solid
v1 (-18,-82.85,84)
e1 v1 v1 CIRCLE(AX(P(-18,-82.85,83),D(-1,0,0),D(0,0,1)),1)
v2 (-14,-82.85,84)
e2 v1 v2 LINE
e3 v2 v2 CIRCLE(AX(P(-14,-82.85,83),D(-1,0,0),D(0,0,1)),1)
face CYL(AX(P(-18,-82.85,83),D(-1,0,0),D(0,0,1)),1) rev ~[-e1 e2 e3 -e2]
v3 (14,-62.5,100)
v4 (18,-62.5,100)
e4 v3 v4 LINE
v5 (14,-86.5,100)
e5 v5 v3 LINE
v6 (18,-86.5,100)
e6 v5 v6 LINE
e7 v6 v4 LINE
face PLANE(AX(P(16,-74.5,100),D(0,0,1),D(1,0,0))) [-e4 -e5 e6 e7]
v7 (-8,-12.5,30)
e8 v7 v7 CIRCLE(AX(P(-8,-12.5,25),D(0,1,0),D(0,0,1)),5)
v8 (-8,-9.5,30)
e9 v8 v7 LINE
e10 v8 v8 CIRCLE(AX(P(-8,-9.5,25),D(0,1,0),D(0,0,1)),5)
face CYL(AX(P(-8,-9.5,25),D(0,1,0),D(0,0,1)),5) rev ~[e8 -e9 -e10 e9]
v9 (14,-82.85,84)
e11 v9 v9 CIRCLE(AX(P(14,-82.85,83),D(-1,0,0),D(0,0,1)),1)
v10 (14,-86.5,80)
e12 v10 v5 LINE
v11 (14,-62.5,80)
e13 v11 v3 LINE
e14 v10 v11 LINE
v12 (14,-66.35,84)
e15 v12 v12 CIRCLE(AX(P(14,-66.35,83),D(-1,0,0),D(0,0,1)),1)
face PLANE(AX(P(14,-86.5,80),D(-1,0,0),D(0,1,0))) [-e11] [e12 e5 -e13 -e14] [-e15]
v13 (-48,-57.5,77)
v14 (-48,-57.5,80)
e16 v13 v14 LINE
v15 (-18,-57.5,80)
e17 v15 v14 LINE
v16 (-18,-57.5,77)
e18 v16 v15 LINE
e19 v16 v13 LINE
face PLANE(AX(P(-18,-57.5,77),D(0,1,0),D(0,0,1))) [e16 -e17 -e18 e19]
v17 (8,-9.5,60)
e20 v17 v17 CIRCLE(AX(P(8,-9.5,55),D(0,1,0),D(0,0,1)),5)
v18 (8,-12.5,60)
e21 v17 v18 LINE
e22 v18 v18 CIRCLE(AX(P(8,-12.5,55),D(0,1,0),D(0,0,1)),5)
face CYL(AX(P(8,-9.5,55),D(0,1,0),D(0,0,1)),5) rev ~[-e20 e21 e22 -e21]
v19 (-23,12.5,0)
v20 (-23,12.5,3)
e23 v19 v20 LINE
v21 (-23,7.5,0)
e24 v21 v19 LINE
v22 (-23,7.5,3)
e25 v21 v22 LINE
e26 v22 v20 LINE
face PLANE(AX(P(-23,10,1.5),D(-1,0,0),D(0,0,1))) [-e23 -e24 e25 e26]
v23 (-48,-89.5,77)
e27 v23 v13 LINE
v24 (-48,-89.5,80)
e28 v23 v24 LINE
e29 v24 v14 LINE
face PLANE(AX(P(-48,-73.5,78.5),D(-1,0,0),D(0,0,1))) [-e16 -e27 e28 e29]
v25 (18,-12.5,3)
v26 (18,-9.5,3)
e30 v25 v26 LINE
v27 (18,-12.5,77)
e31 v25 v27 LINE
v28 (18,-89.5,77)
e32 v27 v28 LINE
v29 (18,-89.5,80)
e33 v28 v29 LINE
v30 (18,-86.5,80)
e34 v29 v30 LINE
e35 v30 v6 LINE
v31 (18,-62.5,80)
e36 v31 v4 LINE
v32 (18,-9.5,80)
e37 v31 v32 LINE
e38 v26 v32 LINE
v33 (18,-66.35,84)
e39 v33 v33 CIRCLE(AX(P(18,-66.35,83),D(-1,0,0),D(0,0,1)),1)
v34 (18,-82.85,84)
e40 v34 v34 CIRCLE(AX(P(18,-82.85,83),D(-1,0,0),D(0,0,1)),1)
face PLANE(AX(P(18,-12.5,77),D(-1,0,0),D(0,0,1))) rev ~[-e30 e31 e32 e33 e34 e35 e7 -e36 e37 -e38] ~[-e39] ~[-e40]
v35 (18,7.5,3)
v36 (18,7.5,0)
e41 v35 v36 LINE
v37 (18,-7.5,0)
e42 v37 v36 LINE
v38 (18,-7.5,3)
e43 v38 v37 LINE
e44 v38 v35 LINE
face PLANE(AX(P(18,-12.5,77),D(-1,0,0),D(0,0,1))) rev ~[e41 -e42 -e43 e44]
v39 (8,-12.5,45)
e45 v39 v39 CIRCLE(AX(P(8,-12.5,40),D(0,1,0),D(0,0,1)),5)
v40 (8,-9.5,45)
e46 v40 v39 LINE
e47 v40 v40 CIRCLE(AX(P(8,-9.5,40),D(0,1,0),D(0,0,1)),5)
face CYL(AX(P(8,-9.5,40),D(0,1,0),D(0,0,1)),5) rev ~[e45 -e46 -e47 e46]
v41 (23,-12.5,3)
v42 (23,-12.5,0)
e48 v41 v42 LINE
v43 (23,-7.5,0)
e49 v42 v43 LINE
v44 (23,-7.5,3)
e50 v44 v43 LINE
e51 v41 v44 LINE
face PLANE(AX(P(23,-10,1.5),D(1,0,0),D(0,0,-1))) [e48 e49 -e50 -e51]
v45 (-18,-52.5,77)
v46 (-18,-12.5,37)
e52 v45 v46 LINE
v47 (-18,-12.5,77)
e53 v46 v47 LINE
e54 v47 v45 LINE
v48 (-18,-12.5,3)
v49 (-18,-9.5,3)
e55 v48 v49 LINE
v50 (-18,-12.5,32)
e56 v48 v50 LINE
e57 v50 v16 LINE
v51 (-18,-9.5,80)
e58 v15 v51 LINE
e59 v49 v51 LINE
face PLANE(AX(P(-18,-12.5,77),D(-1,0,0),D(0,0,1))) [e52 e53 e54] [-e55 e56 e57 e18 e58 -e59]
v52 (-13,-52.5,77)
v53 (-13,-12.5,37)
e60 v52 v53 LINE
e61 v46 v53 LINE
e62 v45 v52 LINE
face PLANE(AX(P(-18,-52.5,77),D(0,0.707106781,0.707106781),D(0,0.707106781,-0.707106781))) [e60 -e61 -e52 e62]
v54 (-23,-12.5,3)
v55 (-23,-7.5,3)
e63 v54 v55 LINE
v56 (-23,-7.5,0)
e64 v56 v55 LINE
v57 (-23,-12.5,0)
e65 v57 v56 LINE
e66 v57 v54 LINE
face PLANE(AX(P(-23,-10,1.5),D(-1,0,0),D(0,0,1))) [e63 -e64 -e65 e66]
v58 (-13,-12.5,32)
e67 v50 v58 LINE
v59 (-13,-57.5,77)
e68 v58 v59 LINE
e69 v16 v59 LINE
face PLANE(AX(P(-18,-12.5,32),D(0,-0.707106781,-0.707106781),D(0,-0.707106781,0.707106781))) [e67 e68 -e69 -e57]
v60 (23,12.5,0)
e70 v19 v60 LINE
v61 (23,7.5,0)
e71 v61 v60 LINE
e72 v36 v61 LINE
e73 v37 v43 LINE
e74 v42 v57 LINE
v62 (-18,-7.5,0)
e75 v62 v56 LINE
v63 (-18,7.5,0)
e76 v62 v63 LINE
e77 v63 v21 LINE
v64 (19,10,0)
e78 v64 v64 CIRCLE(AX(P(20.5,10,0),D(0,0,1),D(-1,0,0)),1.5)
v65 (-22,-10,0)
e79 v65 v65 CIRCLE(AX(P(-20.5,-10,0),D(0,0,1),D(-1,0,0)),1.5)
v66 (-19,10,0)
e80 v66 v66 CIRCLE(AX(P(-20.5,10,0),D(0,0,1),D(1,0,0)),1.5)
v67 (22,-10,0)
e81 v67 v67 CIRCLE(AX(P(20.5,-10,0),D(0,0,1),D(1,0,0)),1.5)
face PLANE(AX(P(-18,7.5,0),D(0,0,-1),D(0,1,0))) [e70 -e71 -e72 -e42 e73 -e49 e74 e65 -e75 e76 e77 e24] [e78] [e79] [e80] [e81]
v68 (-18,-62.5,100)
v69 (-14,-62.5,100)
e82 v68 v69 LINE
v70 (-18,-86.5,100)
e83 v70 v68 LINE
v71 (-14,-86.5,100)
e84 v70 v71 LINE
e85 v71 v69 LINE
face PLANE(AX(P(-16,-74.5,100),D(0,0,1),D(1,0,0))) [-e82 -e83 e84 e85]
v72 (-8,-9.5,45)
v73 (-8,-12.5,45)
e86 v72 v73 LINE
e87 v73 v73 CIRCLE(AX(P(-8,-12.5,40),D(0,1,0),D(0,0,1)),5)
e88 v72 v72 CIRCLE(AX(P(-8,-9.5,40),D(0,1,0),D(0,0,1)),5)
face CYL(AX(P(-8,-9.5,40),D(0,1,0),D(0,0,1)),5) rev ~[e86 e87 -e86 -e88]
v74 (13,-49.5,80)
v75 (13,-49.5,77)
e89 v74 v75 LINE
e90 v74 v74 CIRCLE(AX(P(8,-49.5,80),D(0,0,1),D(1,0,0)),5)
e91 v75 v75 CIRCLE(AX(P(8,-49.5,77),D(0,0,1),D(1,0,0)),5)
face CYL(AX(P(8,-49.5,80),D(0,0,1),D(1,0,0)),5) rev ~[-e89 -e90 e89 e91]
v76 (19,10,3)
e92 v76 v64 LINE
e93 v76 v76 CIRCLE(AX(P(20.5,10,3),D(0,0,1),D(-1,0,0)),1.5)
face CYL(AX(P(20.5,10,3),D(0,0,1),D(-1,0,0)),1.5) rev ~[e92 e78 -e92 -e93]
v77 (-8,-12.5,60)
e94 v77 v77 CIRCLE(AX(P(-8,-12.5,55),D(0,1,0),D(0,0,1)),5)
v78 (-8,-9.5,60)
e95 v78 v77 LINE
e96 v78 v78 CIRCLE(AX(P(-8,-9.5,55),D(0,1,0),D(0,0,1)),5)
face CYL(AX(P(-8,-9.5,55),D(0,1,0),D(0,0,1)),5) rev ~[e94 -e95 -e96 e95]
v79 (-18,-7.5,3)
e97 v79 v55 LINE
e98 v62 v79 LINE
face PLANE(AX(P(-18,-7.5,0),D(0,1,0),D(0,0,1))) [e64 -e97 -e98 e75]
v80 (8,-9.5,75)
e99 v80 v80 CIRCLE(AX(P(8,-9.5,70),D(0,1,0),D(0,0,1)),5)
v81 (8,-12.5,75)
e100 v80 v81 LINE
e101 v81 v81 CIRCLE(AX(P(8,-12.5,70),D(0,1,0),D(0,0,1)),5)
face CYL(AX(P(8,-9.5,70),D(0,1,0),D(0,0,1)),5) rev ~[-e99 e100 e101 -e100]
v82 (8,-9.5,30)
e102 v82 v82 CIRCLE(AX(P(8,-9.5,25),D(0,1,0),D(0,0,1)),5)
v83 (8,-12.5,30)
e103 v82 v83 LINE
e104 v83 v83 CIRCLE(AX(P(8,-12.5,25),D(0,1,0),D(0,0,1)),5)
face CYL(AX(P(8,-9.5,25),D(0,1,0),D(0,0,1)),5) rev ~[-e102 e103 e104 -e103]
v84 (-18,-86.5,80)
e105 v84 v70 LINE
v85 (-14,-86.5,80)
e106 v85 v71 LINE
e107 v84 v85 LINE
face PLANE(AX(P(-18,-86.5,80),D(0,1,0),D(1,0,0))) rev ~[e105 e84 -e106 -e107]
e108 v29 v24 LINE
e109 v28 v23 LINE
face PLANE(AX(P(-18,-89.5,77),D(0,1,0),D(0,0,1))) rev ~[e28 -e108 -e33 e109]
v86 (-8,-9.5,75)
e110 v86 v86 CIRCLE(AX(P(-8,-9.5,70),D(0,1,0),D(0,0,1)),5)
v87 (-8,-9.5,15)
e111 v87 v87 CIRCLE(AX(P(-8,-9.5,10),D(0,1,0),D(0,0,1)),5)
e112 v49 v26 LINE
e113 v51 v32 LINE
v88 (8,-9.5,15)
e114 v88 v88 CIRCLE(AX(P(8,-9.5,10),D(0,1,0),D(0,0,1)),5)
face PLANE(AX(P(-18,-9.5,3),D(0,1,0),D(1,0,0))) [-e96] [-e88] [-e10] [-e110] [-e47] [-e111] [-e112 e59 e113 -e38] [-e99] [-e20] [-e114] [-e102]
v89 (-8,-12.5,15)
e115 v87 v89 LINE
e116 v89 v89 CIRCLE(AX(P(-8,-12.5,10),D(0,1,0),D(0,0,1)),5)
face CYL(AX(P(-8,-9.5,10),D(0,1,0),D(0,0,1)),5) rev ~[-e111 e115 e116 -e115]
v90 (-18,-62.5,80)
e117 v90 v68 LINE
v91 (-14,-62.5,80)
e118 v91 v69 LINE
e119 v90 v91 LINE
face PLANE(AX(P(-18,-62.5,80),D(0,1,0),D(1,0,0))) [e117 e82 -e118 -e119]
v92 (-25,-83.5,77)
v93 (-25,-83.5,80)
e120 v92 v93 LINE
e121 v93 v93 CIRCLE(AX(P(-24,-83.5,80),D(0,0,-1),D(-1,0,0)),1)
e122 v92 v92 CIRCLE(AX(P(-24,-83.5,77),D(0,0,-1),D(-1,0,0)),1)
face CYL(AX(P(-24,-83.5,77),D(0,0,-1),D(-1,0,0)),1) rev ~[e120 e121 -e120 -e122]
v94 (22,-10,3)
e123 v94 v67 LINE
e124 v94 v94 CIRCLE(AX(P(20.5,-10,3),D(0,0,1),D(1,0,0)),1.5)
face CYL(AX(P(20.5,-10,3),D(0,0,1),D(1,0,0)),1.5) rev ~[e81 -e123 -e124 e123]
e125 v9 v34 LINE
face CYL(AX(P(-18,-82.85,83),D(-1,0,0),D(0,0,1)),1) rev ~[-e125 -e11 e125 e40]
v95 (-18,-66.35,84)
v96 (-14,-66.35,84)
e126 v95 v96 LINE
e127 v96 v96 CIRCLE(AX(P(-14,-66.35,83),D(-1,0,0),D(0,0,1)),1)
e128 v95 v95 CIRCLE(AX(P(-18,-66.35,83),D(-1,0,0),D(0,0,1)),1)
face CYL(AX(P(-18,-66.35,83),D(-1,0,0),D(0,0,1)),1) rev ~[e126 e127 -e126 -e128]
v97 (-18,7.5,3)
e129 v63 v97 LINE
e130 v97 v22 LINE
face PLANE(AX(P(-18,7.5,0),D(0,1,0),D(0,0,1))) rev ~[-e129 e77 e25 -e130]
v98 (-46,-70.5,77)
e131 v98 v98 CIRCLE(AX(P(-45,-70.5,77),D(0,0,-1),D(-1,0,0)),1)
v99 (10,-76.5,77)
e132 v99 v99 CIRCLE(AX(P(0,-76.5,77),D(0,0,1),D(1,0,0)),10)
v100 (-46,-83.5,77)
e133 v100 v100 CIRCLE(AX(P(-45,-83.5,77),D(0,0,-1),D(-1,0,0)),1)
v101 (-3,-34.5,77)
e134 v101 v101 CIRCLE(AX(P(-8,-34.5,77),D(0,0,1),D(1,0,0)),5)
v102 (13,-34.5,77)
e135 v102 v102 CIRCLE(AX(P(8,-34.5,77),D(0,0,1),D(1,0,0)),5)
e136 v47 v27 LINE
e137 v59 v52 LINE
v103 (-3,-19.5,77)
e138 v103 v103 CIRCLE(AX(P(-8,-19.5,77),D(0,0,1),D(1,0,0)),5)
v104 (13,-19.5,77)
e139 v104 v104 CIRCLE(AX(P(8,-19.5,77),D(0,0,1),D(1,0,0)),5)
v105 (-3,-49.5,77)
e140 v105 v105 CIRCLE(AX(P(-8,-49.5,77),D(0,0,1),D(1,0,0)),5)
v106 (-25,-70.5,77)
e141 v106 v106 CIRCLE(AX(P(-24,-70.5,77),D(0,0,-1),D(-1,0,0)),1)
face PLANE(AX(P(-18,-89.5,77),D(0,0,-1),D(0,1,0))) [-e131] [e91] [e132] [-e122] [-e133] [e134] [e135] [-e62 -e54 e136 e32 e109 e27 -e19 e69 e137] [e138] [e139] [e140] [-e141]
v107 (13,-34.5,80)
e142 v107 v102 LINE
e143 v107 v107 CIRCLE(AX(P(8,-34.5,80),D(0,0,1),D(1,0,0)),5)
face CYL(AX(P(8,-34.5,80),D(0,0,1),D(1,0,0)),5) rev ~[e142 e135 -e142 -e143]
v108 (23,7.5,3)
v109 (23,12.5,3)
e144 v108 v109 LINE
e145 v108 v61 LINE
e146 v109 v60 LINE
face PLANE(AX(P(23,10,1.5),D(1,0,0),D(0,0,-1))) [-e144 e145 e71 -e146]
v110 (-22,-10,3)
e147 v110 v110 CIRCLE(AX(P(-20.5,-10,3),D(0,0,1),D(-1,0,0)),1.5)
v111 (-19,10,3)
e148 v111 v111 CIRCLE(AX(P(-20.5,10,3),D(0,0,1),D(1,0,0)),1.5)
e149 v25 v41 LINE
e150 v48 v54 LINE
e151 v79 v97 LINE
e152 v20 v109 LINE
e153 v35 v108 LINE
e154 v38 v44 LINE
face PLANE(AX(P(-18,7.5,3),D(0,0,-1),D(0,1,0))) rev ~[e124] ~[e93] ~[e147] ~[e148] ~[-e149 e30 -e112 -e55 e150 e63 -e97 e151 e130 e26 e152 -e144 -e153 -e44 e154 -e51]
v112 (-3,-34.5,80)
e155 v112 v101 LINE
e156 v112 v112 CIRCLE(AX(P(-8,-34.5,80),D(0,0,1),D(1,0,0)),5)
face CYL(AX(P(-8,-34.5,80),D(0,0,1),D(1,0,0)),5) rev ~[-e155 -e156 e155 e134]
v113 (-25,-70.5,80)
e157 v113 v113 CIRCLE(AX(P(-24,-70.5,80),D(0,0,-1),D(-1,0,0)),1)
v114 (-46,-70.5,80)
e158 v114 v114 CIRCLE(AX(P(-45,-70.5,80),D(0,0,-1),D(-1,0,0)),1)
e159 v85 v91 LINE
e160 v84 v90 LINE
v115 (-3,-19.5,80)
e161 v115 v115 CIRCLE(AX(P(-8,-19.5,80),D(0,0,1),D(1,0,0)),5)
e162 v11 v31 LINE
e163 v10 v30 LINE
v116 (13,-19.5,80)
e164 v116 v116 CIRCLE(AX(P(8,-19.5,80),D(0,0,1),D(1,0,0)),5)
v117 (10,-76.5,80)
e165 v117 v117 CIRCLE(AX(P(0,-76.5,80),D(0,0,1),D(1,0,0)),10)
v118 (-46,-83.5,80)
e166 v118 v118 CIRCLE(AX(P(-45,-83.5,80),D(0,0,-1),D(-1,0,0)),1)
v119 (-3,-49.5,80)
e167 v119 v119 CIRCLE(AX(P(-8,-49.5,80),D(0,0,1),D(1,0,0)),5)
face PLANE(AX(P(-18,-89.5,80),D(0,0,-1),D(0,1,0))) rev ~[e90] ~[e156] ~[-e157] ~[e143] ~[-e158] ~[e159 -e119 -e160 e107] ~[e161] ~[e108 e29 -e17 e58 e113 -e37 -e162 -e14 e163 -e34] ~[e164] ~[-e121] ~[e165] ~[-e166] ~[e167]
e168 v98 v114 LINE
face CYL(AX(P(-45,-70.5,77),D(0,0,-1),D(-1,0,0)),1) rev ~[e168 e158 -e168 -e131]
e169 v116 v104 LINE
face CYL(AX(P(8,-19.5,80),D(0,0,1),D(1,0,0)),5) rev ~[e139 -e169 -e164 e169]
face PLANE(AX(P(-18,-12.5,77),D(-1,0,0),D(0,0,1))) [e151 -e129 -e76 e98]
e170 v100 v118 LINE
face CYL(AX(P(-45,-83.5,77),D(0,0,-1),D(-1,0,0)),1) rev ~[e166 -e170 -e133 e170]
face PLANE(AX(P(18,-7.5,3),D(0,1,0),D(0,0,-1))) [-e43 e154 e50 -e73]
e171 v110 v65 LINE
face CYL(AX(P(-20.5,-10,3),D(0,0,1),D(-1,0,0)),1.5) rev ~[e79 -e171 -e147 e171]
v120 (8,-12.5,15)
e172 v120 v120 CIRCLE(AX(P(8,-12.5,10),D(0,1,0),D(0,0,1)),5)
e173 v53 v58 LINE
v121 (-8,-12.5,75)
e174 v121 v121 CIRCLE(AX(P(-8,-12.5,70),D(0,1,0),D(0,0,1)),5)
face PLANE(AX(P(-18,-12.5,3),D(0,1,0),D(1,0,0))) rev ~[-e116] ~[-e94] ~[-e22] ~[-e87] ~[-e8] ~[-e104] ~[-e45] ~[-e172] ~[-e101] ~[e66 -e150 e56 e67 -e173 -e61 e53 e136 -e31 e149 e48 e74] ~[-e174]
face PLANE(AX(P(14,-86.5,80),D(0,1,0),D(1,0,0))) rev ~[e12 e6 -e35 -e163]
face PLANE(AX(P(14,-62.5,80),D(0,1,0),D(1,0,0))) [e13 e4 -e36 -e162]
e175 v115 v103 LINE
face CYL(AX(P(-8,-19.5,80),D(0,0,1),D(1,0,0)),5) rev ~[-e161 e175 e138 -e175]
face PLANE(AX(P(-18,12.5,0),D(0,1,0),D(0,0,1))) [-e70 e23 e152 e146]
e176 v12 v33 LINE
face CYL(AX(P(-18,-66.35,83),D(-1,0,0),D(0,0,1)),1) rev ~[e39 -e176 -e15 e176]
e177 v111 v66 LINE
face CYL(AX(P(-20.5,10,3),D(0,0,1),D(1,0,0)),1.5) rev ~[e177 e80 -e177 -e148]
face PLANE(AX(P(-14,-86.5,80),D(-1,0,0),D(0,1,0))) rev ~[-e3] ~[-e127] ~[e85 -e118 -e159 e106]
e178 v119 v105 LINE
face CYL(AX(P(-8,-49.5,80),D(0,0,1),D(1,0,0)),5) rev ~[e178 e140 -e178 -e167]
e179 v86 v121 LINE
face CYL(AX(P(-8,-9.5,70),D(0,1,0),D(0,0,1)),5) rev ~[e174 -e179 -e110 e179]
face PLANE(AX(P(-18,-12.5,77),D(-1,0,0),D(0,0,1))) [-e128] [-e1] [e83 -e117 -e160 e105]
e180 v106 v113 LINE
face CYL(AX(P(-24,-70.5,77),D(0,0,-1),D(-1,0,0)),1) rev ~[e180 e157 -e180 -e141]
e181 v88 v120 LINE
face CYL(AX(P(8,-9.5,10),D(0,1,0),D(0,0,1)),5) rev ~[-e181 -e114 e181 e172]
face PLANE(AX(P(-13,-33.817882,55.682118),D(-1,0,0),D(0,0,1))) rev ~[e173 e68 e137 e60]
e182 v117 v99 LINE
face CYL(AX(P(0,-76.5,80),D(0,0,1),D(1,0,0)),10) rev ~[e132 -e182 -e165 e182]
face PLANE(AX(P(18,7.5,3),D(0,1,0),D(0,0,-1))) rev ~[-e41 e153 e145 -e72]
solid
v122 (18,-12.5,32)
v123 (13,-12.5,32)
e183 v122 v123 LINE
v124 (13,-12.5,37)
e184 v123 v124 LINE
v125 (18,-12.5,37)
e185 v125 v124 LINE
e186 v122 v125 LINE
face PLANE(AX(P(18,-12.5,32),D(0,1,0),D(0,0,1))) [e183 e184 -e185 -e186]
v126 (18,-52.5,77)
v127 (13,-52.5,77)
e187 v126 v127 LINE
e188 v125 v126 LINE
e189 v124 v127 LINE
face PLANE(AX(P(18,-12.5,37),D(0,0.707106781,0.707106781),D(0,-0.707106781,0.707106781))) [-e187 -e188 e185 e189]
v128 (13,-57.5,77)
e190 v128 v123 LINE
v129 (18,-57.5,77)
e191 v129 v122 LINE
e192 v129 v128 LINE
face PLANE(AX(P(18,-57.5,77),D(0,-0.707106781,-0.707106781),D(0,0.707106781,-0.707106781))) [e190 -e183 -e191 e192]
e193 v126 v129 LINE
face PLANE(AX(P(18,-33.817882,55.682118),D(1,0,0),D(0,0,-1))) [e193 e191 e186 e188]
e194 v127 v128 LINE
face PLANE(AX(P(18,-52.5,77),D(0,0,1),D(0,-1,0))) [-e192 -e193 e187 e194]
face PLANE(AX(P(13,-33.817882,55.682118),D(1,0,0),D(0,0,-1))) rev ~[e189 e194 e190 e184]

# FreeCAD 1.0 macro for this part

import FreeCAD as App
import Part
import Sketcher
from FreeCAD import Vector

doc = App.newDocument("Part")
params = doc.addObject("Spreadsheet::Sheet", "Params")
for row, (alias, value) in enumerate([
    ("sketch1_width", "36 mm"),
    ("sketch1_height", "25 mm"),
    ("pad1_length", "3 mm"),
    ("sketch2_width", "36 mm"),
    ("sketch2_height", "3 mm"),
    ("pad2_length", "77 mm"),
    ("sketch3_width", "36 mm"),
    ("sketch3_height", "3 mm"),
    ("pad3_length", "77 mm"),
    ("sketch4_diameter", "20 mm"),
    ("pocket1_length", "77 mm"),
    ("sketch5_width", "4 mm"),
    ("sketch5_height", "24 mm"),
    ("pad4_length", "20 mm"),
    ("sketch6_width", "5 mm"),
    ("sketch6_height", "3 mm"),
    ("pad5_length", "5 mm"),
    ("sketch7_width", "5 mm"),
    ("sketch7_height", "3 mm"),
    ("pad6_length", "5 mm"),
    ("sketch8_diameter", "3 mm"),
    ("sketch9_width", "5 mm"),
    ("pad7_length", "5 mm"),
    ("sketch10_diameter", "2 mm"),
    ("sketch11_diameter", "10 mm"),
    ("pocket4_length", "5 mm"),
    ("sketch12_diameter", "10 mm"),
    ("pocket5_length", "5 mm"),
    ("sketch13_width", "32 mm"),
    ("sketch13_height", "3 mm"),
    ("pad8_length", "30 mm"),
    ("sketch14_diameter", "2 mm"),
    ("pocket6_length", "10 mm"),
    ("sketch15_width", "5 mm"),
    ("pad9_length", "5 mm"),
], start=1):
    params.set(f"A{row}", alias)
    params.set(f"B{row}", "=" + value)
    params.setAlias(f"B{row}", alias)

body = doc.addObject("PartDesign::Body", "Body")

sketch1 = doc.addObject("Sketcher::SketchObject", "Sketch")
body.addObject(sketch1)
sketch1.AttachmentSupport = (doc.XY_Plane, [""])
sketch1.MapMode = "FlatFace"
sketch1.addGeometry(Part.LineSegment(Vector(-18, 12.5, 0), Vector(-18, -12.5, 0)), False)
sketch1.addGeometry(Part.LineSegment(Vector(-18, -12.5, 0), Vector(18, -12.5, 0)), False)
sketch1.addGeometry(Part.LineSegment(Vector(18, -12.5, 0), Vector(18, 12.5, 0)), False)
sketch1.addGeometry(Part.LineSegment(Vector(18, 12.5, 0), Vector(-18, 12.5, 0)), False)
sketch1.addConstraint(Sketcher.Constraint("Coincident", 0, 2, 1, 1))
sketch1.addConstraint(Sketcher.Constraint("Coincident", 1, 2, 2, 1))
sketch1.addConstraint(Sketcher.Constraint("Coincident", 2, 2, 3, 1))
sketch1.addConstraint(Sketcher.Constraint("Coincident", 3, 2, 0, 1))
sketch1.addConstraint(Sketcher.Constraint("Vertical", 0))
sketch1.addConstraint(Sketcher.Constraint("Horizontal", 1))
sketch1.addConstraint(Sketcher.Constraint("Vertical", 2))
sketch1.addConstraint(Sketcher.Constraint("Horizontal", 3))
sketch1.addConstraint(Sketcher.Constraint("Symmetric", 0, 2, 2, 2, -1, 1))
sketch1.addConstraint(Sketcher.Constraint("DistanceX", 1, 1, 1, 2, 36.0))
sketch1.addConstraint(Sketcher.Constraint("DistanceY", 0, 2, 0, 1, 25.0))
sketch1.setExpression("Constraints[9]", "Params.sketch1_width")
sketch1.setExpression("Constraints[10]", "Params.sketch1_height")
pad1 = doc.addObject("PartDesign::Pad", "Pad")
body.addObject(pad1)
pad1.Profile = sketch1
pad1.setExpression("Length", "Params.pad1_length")

sketch2 = doc.addObject("Sketcher::SketchObject", "Sketch001")
body.addObject(sketch2)
sketch2.AttachmentSupport = (doc.XY_Plane, [""])
sketch2.MapMode = "FlatFace"
sketch2.AttachmentOffset = App.Placement(Vector(0, 0, 3), App.Rotation())
sketch2.addGeometry(Part.LineSegment(Vector(-18, -9.5, 0), Vector(-18, -12.5, 0)), False)
sketch2.addGeometry(Part.LineSegment(Vector(-18, -12.5, 0), Vector(18, -12.5, 0)), False)
sketch2.addGeometry(Part.LineSegment(Vector(18, -12.5, 0), Vector(18, -9.5, 0)), False)
sketch2.addGeometry(Part.LineSegment(Vector(18, -9.5, 0), Vector(-18, -9.5, 0)), False)
sketch2.addConstraint(Sketcher.Constraint("Coincident", 0, 2, 1, 1))
sketch2.addConstraint(Sketcher.Constraint("Coincident", 1, 2, 2, 1))
sketch2.addConstraint(Sketcher.Constraint("Coincident", 2, 2, 3, 1))
sketch2.addConstraint(Sketcher.Constraint("Coincident", 3, 2, 0, 1))
sketch2.addConstraint(Sketcher.Constraint("Vertical", 0))
sketch2.addConstraint(Sketcher.Constraint("Horizontal", 1))
sketch2.addConstraint(Sketcher.Constraint("Vertical", 2))
sketch2.addConstraint(Sketcher.Constraint("Horizontal", 3))
sketch2.addConstraint(Sketcher.Constraint("DistanceX", 1, 1, 1, 2, 36.0))
sketch2.addConstraint(Sketcher.Constraint("DistanceY", 0, 2, 0, 1, 3.0))
sketch2.addConstraint(Sketcher.Constraint("DistanceX", 0, 2, -1, 1, 18.0))
sketch2.addConstraint(Sketcher.Constraint("DistanceY", 0, 2, -1, 1, 12.5))
sketch2.setExpression("Constraints[8]", "Params.sketch2_width")
sketch2.setExpression("Constraints[9]", "Params.sketch2_height")
pad2 = doc.addObject("PartDesign::Pad", "Pad001")
body.addObject(pad2)
pad2.Profile = sketch2
pad2.setExpression("Length", "Params.pad2_length")

sketch3 = doc.addObject("Sketcher::SketchObject", "Sketch002")
body.addObject(sketch3)
sketch3.AttachmentSupport = (doc.XZ_Plane, [""])
sketch3.MapMode = "FlatFace"
sketch3.AttachmentOffset = App.Placement(Vector(0, 0, 12.5), App.Rotation())
sketch3.addGeometry(Part.LineSegment(Vector(-18, 80, 0), Vector(-18, 77, 0)), False)
sketch3.addGeometry(Part.LineSegment(Vector(-18, 77, 0), Vector(18, 77, 0)), False)
sketch3.addGeometry(Part.LineSegment(Vector(18, 77, 0), Vector(18, 80, 0)), False)
sketch3.addGeometry(Part.LineSegment(Vector(18, 80, 0), Vector(-18, 80, 0)), False)
sketch3.addConstraint(Sketcher.Constraint("Coincident", 0, 2, 1, 1))
sketch3.addConstraint(Sketcher.Constraint("Coincident", 1, 2, 2, 1))
sketch3.addConstraint(Sketcher.Constraint("Coincident", 2, 2, 3, 1))
sketch3.addConstraint(Sketcher.Constraint("Coincident", 3, 2, 0, 1))
sketch3.addConstraint(Sketcher.Constraint("Vertical", 0))
sketch3.addConstraint(Sketcher.Constraint("Horizontal", 1))
sketch3.addConstraint(Sketcher.Constraint("Vertical", 2))
sketch3.addConstraint(Sketcher.Constraint("Horizontal", 3))
sketch3.addConstraint(Sketcher.Constraint("DistanceX", 1, 1, 1, 2, 36.0))
sketch3.addConstraint(Sketcher.Constraint("DistanceY", 0, 2, 0, 1, 3.0))
sketch3.addConstraint(Sketcher.Constraint("DistanceX", 0, 2, -1, 1, 18.0))
sketch3.addConstraint(Sketcher.Constraint("DistanceY", -1, 1, 0, 2, 77.0))
sketch3.setExpression("Constraints[8]", "Params.sketch3_width")
sketch3.setExpression("Constraints[9]", "Params.sketch3_height")
pad3 = doc.addObject("PartDesign::Pad", "Pad002")
body.addObject(pad3)
pad3.Profile = sketch3
pad3.setExpression("Length", "Params.pad3_length")

sketch4 = doc.addObject("Sketcher::SketchObject", "Sketch003")
body.addObject(sketch4)
sketch4.AttachmentSupport = (doc.XY_Plane, [""])
sketch4.MapMode = "FlatFace"
sketch4.AttachmentOffset = App.Placement(Vector(0, 0, 80), App.Rotation())
sketch4.addGeometry(Part.Circle(Vector(0, -76.5, 0), Vector(0, 0, 1), 10), False)
sketch4.addConstraint(Sketcher.Constraint("PointOnObject", 0, 3, -2))
sketch4.addConstraint(Sketcher.Constraint("Diameter", 0, 20.0))
sketch4.addConstraint(Sketcher.Constraint("DistanceY", 0, 3, -1, 1, 76.5))
sketch4.setExpression("Constraints[1]", "Params.sketch4_diameter")
pocket1 = doc.addObject("PartDesign::Pocket", "Pocket")
body.addObject(pocket1)
pocket1.Profile = sketch4
pocket1.setExpression("Length", "Params.pocket1_length")

sketch5 = doc.addObject("Sketcher::SketchObject", "Sketch004")
body.addObject(sketch5)
sketch5.AttachmentSupport = (doc.XY_Plane, [""])
sketch5.MapMode = "FlatFace"
sketch5.AttachmentOffset = App.Placement(Vector(0, 0, 80), App.Rotation())
sketch5.addGeometry(Part.LineSegment(Vector(14, -62.5, 0), Vector(14, -86.5, 0)), False)
sketch5.addGeometry(Part.LineSegment(Vector(14, -86.5, 0), Vector(18, -86.5, 0)), False)
sketch5.addGeometry(Part.LineSegment(Vector(18, -86.5, 0), Vector(18, -62.5, 0)), False)
sketch5.addGeometry(Part.LineSegment(Vector(18, -62.5, 0), Vector(14, -62.5, 0)), False)
sketch5.addGeometry(Part.LineSegment(Vector(-18, -62.5, 0), Vector(-18, -86.5, 0)), False)
sketch5.addGeometry(Part.LineSegment(Vector(-18, -86.5, 0), Vector(-14, -86.5, 0)), False)
sketch5.addGeometry(Part.LineSegment(Vector(-14, -86.5, 0), Vector(-14, -62.5, 0)), False)
sketch5.addGeometry(Part.LineSegment(Vector(-14, -62.5, 0), Vector(-18, -62.5, 0)), False)
sketch5.addConstraint(Sketcher.Constraint("Coincident", 0, 2, 1, 1))
sketch5.addConstraint(Sketcher.Constraint("Coincident", 1, 2, 2, 1))
sketch5.addConstraint(Sketcher.Constraint("Coincident", 2, 2, 3, 1))
sketch5.addConstraint(Sketcher.Constraint("Coincident", 3, 2, 0, 1))
sketch5.addConstraint(Sketcher.Constraint("Coincident", 4, 2, 5, 1))
sketch5.addConstraint(Sketcher.Constraint("Coincident", 5, 2, 6, 1))
sketch5.addConstraint(Sketcher.Constraint("Coincident", 6, 2, 7, 1))
sketch5.addConstraint(Sketcher.Constraint("Coincident", 7, 2, 4, 1))
sketch5.addConstraint(Sketcher.Constraint("Vertical", 0))
sketch5.addConstraint(Sketcher.Constraint("Horizontal", 1))
sketch5.addConstraint(Sketcher.Constraint("Vertical", 2))
sketch5.addConstraint(Sketcher.Constraint("Horizontal", 3))
sketch5.addConstraint(Sketcher.Constraint("Vertical", 4))
sketch5.addConstraint(Sketcher.Constraint("Horizontal", 5))
sketch5.addConstraint(Sketcher.Constraint("Vertical", 6))
sketch5.addConstraint(Sketcher.Constraint("Horizontal", 7))
sketch5.addConstraint(Sketcher.Constraint("Symmetric", 1, 2, 4, 2, -2))
sketch5.addConstraint(Sketcher.Constraint("Symmetric", 3, 2, 6, 2, -2))
sketch5.addConstraint(Sketcher.Constraint("DistanceX", 1, 1, 1, 2, 4.0))
sketch5.addConstraint(Sketcher.Constraint("DistanceY", 0, 2, 0, 1, 24.0))
sketch5.addConstraint(Sketcher.Constraint("DistanceX", -1, 1, 0, 2, 14.0))
sketch5.addConstraint(Sketcher.Constraint("DistanceY", 0, 2, -1, 1, 86.5))
sketch5.setExpression("Constraints[18]", "Params.sketch5_width")
sketch5.setExpression("Constraints[19]", "Params.sketch5_height")
pad4 = doc.addObject("PartDesign::Pad", "Pad003")
body.addObject(pad4)
pad4.Profile = sketch5
pad4.setExpression("Length", "Params.pad4_length")

sketch6 = doc.addObject("Sketcher::SketchObject", "Sketch005")
body.addObject(sketch6)
sketch6.AttachmentSupport = (doc.YZ_Plane, [""])
sketch6.MapMode = "FlatFace"
sketch6.AttachmentOffset = App.Placement(Vector(0, 0, 18), App.Rotation())
sketch6.addGeometry(Part.LineSegment(Vector(12.5, 3, 0), Vector(7.5, 3, 0)), False)
sketch6.addGeometry(Part.LineSegment(Vector(7.5, 3, 0), Vector(7.5, 0, 0)), False)
sketch6.addGeometry(Part.LineSegment(Vector(7.5, 0, 0), Vector(12.5, 0, 0)), False)
sketch6.addGeometry(Part.LineSegment(Vector(12.5, 0, 0), Vector(12.5, 3, 0)), False)
sketch6.addGeometry(Part.LineSegment(Vector(-7.5, 3, 0), Vector(-12.5, 3, 0)), False)
sketch6.addGeometry(Part.LineSegment(Vector(-12.5, 3, 0), Vector(-12.5, 0, 0)), False)
sketch6.addGeometry(Part.LineSegment(Vector(-12.5, 0, 0), Vector(-7.5, 0, 0)), False)
sketch6.addGeometry(Part.LineSegment(Vector(-7.5, 0, 0), Vector(-7.5, 3, 0)), False)
sketch6.addConstraint(Sketcher.Constraint("Coincident", 0, 2, 1, 1))
sketch6.addConstraint(Sketcher.Constraint("Coincident", 1, 2, 2, 1))
sketch6.addConstraint(Sketcher.Constraint("Coincident", 2, 2, 3, 1))
sketch6.addConstraint(Sketcher.Constraint("Coincident", 3, 2, 0, 1))
sketch6.addConstraint(Sketcher.Constraint("Coincident", 4, 2, 5, 1))
sketch6.addConstraint(Sketcher.Constraint("Coincident", 5, 2, 6, 1))
sketch6.addConstraint(Sketcher.Constraint("Coincident", 6, 2, 7, 1))
sketch6.addConstraint(Sketcher.Constraint("Coincident", 7, 2, 4, 1))
sketch6.addConstraint(Sketcher.Constraint("Horizontal", 0))
sketch6.addConstraint(Sketcher.Constraint("Vertical", 1))
sketch6.addConstraint(Sketcher.Constraint("Horizontal", 2))
sketch6.addConstraint(Sketcher.Constraint("Vertical", 3))
sketch6.addConstraint(Sketcher.Constraint("Horizontal", 4))
sketch6.addConstraint(Sketcher.Constraint("Vertical", 5))
sketch6.addConstraint(Sketcher.Constraint("Horizontal", 6))
sketch6.addConstraint(Sketcher.Constraint("Vertical", 7))
sketch6.addConstraint(Sketcher.Constraint("Symmetric", 2, 2, 5, 2, -1, 1))
sketch6.addConstraint(Sketcher.Constraint("Symmetric", 1, 2, 6, 2, -2))
sketch6.addConstraint(Sketcher.Constraint("Horizontal", 3, 2, 4, 2))
sketch6.addConstraint(Sketcher.Constraint("DistanceX", 0, 2, 0, 1, 5.0))
sketch6.addConstraint(Sketcher.Constraint("DistanceY", 1, 2, 1, 1, 3.0))
sketch6.addConstraint(Sketcher.Constraint("DistanceX", 4, 2, 0, 2, 20.0))
sketch6.setExpression("Constraints[19]", "Params.sketch6_width")
sketch6.setExpression("Constraints[20]", "Params.sketch6_height")
pad5 = doc.addObject("PartDesign::Pad", "Pad004")
body.addObject(pad5)
pad5.Profile = sketch6
pad5.setExpression("Length", "Params.pad5_length")

sketch7 = doc.addObject("Sketcher::SketchObject", "Sketch006")
body.addObject(sketch7)
sketch7.AttachmentSupport = (doc.YZ_Plane, [""])
sketch7.MapMode = "FlatFace"
sketch7.AttachmentOffset = App.Placement(Vector(0, 0, -18), App.Rotation())
sketch7.addGeometry(Part.LineSegment(Vector(12.5, 0, 0), Vector(7.5, 0, 0)), False)
sketch7.addGeometry(Part.LineSegment(Vector(7.5, 0, 0), Vector(7.5, 3, 0)), False)
sketch7.addGeometry(Part.LineSegment(Vector(7.5, 3, 0), Vector(12.5, 3, 0)), False)
sketch7.addGeometry(Part.LineSegment(Vector(12.5, 3, 0), Vector(12.5, 0, 0)), False)
sketch7.addGeometry(Part.LineSegment(Vector(-7.5, 0, 0), Vector(-12.5, 0, 0)), False)
sketch7.addGeometry(Part.LineSegment(Vector(-12.5, 0, 0), Vector(-12.5, 3, 0)), False)
sketch7.addGeometry(Part.LineSegment(Vector(-12.5, 3, 0), Vector(-7.5, 3, 0)), False)
sketch7.addGeometry(Part.LineSegment(Vector(-7.5, 3, 0), Vector(-7.5, 0, 0)), False)
sketch7.addConstraint(Sketcher.Constraint("Coincident", 0, 2, 1, 1))
sketch7.addConstraint(Sketcher.Constraint("Coincident", 1, 2, 2, 1))
sketch7.addConstraint(Sketcher.Constraint("Coincident", 2, 2, 3, 1))
sketch7.addConstraint(Sketcher.Constraint("Coincident", 3, 2, 0, 1))
sketch7.addConstraint(Sketcher.Constraint("Coincident", 4, 2, 5, 1))
sketch7.addConstraint(Sketcher.Constraint("Coincident", 5, 2, 6, 1))
sketch7.addConstraint(Sketcher.Constraint("Coincident", 6, 2, 7, 1))
sketch7.addConstraint(Sketcher.Constraint("Coincident", 7, 2, 4, 1))
sketch7.addConstraint(Sketcher.Constraint("Horizontal", 0))
sketch7.addConstraint(Sketcher.Constraint("Vertical", 1))
sketch7.addConstraint(Sketcher.Constraint("Horizontal", 2))
sketch7.addConstraint(Sketcher.Constraint("Vertical", 3))
sketch7.addConstraint(Sketcher.Constraint("Horizontal", 4))
sketch7.addConstraint(Sketcher.Constraint("Vertical", 5))
sketch7.addConstraint(Sketcher.Constraint("Horizontal", 6))
sketch7.addConstraint(Sketcher.Constraint("Vertical", 7))
sketch7.addConstraint(Sketcher.Constraint("Symmetric", 3, 2, 4, 2, -1, 1))
sketch7.addConstraint(Sketcher.Constraint("Symmetric", 1, 2, 6, 2, -2))
sketch7.addConstraint(Sketcher.Constraint("PointOnObject", 0, 2, -1))
sketch7.addConstraint(Sketcher.Constraint("DistanceX", 0, 2, 0, 1, 5.0))
sketch7.addConstraint(Sketcher.Constraint("DistanceY", 1, 1, 1, 2, 3.0))
sketch7.addConstraint(Sketcher.Constraint("DistanceX", 4, 2, 0, 2, 20.0))
sketch7.setExpression("Constraints[19]", "Params.sketch7_width")
sketch7.setExpression("Constraints[20]", "Params.sketch7_height")
pad6 = doc.addObject("PartDesign::Pad", "Pad005")
body.addObject(pad6)
pad6.Profile = sketch7
pad6.setExpression("Length", "Params.pad6_length")
pad6.Reversed = True

sketch8 = doc.addObject("Sketcher::SketchObject", "Sketch007")
body.addObject(sketch8)
sketch8.AttachmentSupport = (doc.XY_Plane, [""])
sketch8.MapMode = "FlatFace"
sketch8.AttachmentOffset = App.Placement(Vector(0, 0, 3), App.Rotation())
sketch8.addGeometry(Part.Circle(Vector(-20.5, 10, 0), Vector(0, 0, 1), 1.5), False)
sketch8.addGeometry(Part.Circle(Vector(20.5, 10, 0), Vector(0, 0, 1), 1.5), False)
sketch8.addGeometry(Part.Circle(Vector(20.5, -10, 0), Vector(0, 0, 1), 1.5), False)
sketch8.addGeometry(Part.Circle(Vector(-20.5, -10, 0), Vector(0, 0, 1), 1.5), False)
sketch8.addConstraint(Sketcher.Constraint("Equal", 0, 1))
sketch8.addConstraint(Sketcher.Constraint("Equal", 1, 2))
sketch8.addConstraint(Sketcher.Constraint("Equal", 2, 3))
sketch8.addConstraint(Sketcher.Constraint("Symmetric", 0, 3, 2, 3, -1, 1))
sketch8.addConstraint(Sketcher.Constraint("Symmetric", 1, 3, 3, 3, -1, 1))
sketch8.addConstraint(Sketcher.Constraint("Symmetric", 0, 3, 1, 3, -2))
sketch8.addConstraint(Sketcher.Constraint("Diameter", 0, 3.0))
sketch8.addConstraint(Sketcher.Constraint("DistanceY", -1, 1, 0, 3, 10.0))
sketch8.addConstraint(Sketcher.Constraint("DistanceX", 0, 3, 1, 3, 41.0))
sketch8.setExpression("Constraints[6]", "Params.sketch8_diameter")
pocket2 = doc.addObject("PartDesign::Pocket", "Pocket001")
body.addObject(pocket2)
pocket2.Profile = sketch8
pocket2.Type = "ThroughAll"

sketch9 = doc.addObject("Sketcher::SketchObject", "Sketch008")
body.addObject(sketch9)
sketch9.AttachmentSupport = (doc.YZ_Plane, [""])
sketch9.MapMode = "FlatFace"
sketch9.AttachmentOffset = App.Placement(Vector(0, 0, -18), App.Rotation())
sketch9.addGeometry(Part.LineSegment(Vector(-52.5, 77, 0), Vector(-12.5, 37, 0)), False)
sketch9.addGeometry(Part.LineSegment(Vector(-12.5, 37, 0), Vector(-12.5, 32, 0)), False)
sketch9.addGeometry(Part.LineSegment(Vector(-12.5, 32, 0), Vector(-57.5, 77, 0)), False)
sketch9.addGeometry(Part.LineSegment(Vector(-57.5, 77, 0), Vector(-52.5, 77, 0)), False)
sketch9.addConstraint(Sketcher.Constraint("Coincident", 0, 2, 1, 1))
sketch9.addConstraint(Sketcher.Constraint("Coincident", 1, 2, 2, 1))
sketch9.addConstraint(Sketcher.Constraint("Coincident", 2, 2, 3, 1))
sketch9.addConstraint(Sketcher.Constraint("Coincident", 3, 2, 0, 1))
sketch9.addConstraint(Sketcher.Constraint("Vertical", 1))
sketch9.addConstraint(Sketcher.Constraint("Horizontal", 3))
sketch9.addConstraint(Sketcher.Constraint("Parallel", 0, 2))
sketch9.addConstraint(Sketcher.Constraint("Equal", 3, 1))
sketch9.addConstraint(Sketcher.Constraint("DistanceX", 3, 1, 3, 2, 5.0))
sketch9.addConstraint(Sketcher.Constraint("DistanceY", -1, 1, 0, 2, 37.0))
sketch9.addConstraint(Sketcher.Constraint("DistanceY", -1, 1, 2, 2, 77.0))
sketch9.addConstraint(Sketcher.Constraint("DistanceX", 0, 2, -1, 1, 12.5))
sketch9.setExpression("Constraints[8]", "Params.sketch9_width")
pad7 = doc.addObject("PartDesign::Pad", "Pad006")
body.addObject(pad7)
pad7.Profile = sketch9
pad7.setExpression("Length", "Params.pad7_length")

sketch10 = doc.addObject("Sketcher::SketchObject", "Sketch009")
body.addObject(sketch10)
sketch10.AttachmentSupport = (doc.YZ_Plane, [""])
sketch10.MapMode = "FlatFace"
sketch10.AttachmentOffset = App.Placement(Vector(0, 0, -18), App.Rotation())
sketch10.addGeometry(Part.Circle(Vector(-82.85, 83, 0), Vector(0, 0, 1), 1), False)
sketch10.addGeometry(Part.Circle(Vector(-66.35, 83, 0), Vector(0, 0, 1), 1), False)
sketch10.addConstraint(Sketcher.Constraint("Equal", 0, 1))
sketch10.addConstraint(Sketcher.Constraint("Horizontal", 0, 3, 1, 3))
sketch10.addConstraint(Sketcher.Constraint("Diameter", 0, 2.0))
sketch10.addConstraint(Sketcher.Constraint("DistanceY", -1, 1, 0, 3, 83.0))
sketch10.addConstraint(Sketcher.Constraint("DistanceX", 0, 3, 1, 3, 16.5))
sketch10.addConstraint(Sketcher.Constraint("DistanceX", 0, 3, -1, 1, 82.85))
sketch10.setExpression("Constraints[2]", "Params.sketch10_diameter")
pocket3 = doc.addObject("PartDesign::Pocket", "Pocket002")
body.addObject(pocket3)
pocket3.Profile = sketch10
pocket3.Type = "ThroughAll"
pocket3.Reversed = True

sketch11 = doc.addObject("Sketcher::SketchObject", "Sketch010")
body.addObject(sketch11)
sketch11.AttachmentSupport = (doc.XY_Plane, [""])
sketch11.MapMode = "FlatFace"
sketch11.AttachmentOffset = App.Placement(Vector(0, 0, 80), App.Rotation())
sketch11.addGeometry(Part.Circle(Vector(-8, -19.5, 0), Vector(0, 0, 1), 5), False)
sketch11.addGeometry(Part.Circle(Vector(8, -19.5, 0), Vector(0, 0, 1), 5), False)
sketch11.addGeometry(Part.Circle(Vector(-8, -34.5, 0), Vector(0, 0, 1), 5), False)
sketch11.addGeometry(Part.Circle(Vector(8, -34.5, 0), Vector(0, 0, 1), 5), False)
sketch11.addGeometry(Part.Circle(Vector(-8, -49.5, 0), Vector(0, 0, 1), 5), False)
sketch11.addGeometry(Part.Circle(Vector(8, -49.5, 0), Vector(0, 0, 1), 5), False)
sketch11.addConstraint(Sketcher.Constraint("Equal", 0, 1))
sketch11.addConstraint(Sketcher.Constraint("Equal", 1, 2))
sketch11.addConstraint(Sketcher.Constraint("Equal", 2, 3))
sketch11.addConstraint(Sketcher.Constraint("Equal", 3, 4))
sketch11.addConstraint(Sketcher.Constraint("Equal", 4, 5))
sketch11.addConstraint(Sketcher.Constraint("Symmetric", 0, 3, 1, 3, -2))
sketch11.addConstraint(Sketcher.Constraint("Symmetric", 2, 3, 3, 3, -2))
sketch11.addConstraint(Sketcher.Constraint("Symmetric", 4, 3, 5, 3, -2))
sketch11.addConstraint(Sketcher.Constraint("Vertical", 0, 3, 2, 3))
sketch11.addConstraint(Sketcher.Constraint("Vertical", 2, 3, 4, 3))
sketch11.addConstraint(Sketcher.Constraint("Diameter", 0, 10.0))
sketch11.addConstraint(Sketcher.Constraint("DistanceX", 0, 3, -1, 1, 8.0))
sketch11.addConstraint(Sketcher.Constraint("DistanceY", 2, 3, 0, 3, 15.0))
sketch11.addConstraint(Sketcher.Constraint("DistanceY", 4, 3, 2, 3, 15.0))
sketch11.addConstraint(Sketcher.Constraint("DistanceY", 0, 3, -1, 1, 19.5))
sketch11.setExpression("Constraints[10]", "Params.sketch11_diameter")
pocket4 = doc.addObject("PartDesign::Pocket", "Pocket003")
body.addObject(pocket4)
pocket4.Profile = sketch11
pocket4.setExpression("Length", "Params.pocket4_length")

sketch12 = doc.addObject("Sketcher::SketchObject", "Sketch011")
body.addObject(sketch12)
sketch12.AttachmentSupport = (doc.XZ_Plane, [""])
sketch12.MapMode = "FlatFace"
sketch12.AttachmentOffset = App.Placement(Vector(0, 0, 9.5), App.Rotation())
sketch12.addGeometry(Part.Circle(Vector(-8, 70, 0), Vector(0, 0, 1), 5), False)
sketch12.addGeometry(Part.Circle(Vector(8, 70, 0), Vector(0, 0, 1), 5), False)
sketch12.addGeometry(Part.Circle(Vector(-8, 55, 0), Vector(0, 0, 1), 5), False)
sketch12.addGeometry(Part.Circle(Vector(8, 55, 0), Vector(0, 0, 1), 5), False)
sketch12.addGeometry(Part.Circle(Vector(-8, 40, 0), Vector(0, 0, 1), 5), False)
sketch12.addGeometry(Part.Circle(Vector(8, 40, 0), Vector(0, 0, 1), 5), False)
sketch12.addGeometry(Part.Circle(Vector(-8, 25, 0), Vector(0, 0, 1), 5), False)
sketch12.addGeometry(Part.Circle(Vector(8, 25, 0), Vector(0, 0, 1), 5), False)
sketch12.addGeometry(Part.Circle(Vector(-8, 10, 0), Vector(0, 0, 1), 5), False)
sketch12.addGeometry(Part.Circle(Vector(8, 10, 0), Vector(0, 0, 1), 5), False)
sketch12.addConstraint(Sketcher.Constraint("Equal", 0, 1))
sketch12.addConstraint(Sketcher.Constraint("Equal", 1, 2))
sketch12.addConstraint(Sketcher.Constraint("Equal", 2, 3))
sketch12.addConstraint(Sketcher.Constraint("Equal", 3, 4))
sketch12.addConstraint(Sketcher.Constraint("Equal", 4, 5))
sketch12.addConstraint(Sketcher.Constraint("Equal", 5, 6))
sketch12.addConstraint(Sketcher.Constraint("Equal", 6, 7))
sketch12.addConstraint(Sketcher.Constraint("Equal", 7, 8))
sketch12.addConstraint(Sketcher.Constraint("Equal", 8, 9))
sketch12.addConstraint(Sketcher.Constraint("Symmetric", 0, 3, 1, 3, -2))
sketch12.addConstraint(Sketcher.Constraint("Symmetric", 2, 3, 3, 3, -2))
sketch12.addConstraint(Sketcher.Constraint("Symmetric", 4, 3, 5, 3, -2))
sketch12.addConstraint(Sketcher.Constraint("Symmetric", 6, 3, 7, 3, -2))
sketch12.addConstraint(Sketcher.Constraint("Symmetric", 8, 3, 9, 3, -2))
sketch12.addConstraint(Sketcher.Constraint("Vertical", 0, 3, 2, 3))
sketch12.addConstraint(Sketcher.Constraint("Vertical", 2, 3, 4, 3))
sketch12.addConstraint(Sketcher.Constraint("Vertical", 4, 3, 6, 3))
sketch12.addConstraint(Sketcher.Constraint("Vertical", 6, 3, 8, 3))
sketch12.addConstraint(Sketcher.Constraint("Diameter", 0, 10.0))
sketch12.addConstraint(Sketcher.Constraint("DistanceX", 0, 3, -1, 1, 8.0))
sketch12.addConstraint(Sketcher.Constraint("DistanceY", -1, 1, 0, 3, 70.0))
sketch12.addConstraint(Sketcher.Constraint("DistanceY", -1, 1, 2, 3, 55.0))
sketch12.addConstraint(Sketcher.Constraint("DistanceY", -1, 1, 4, 3, 40.0))
sketch12.addConstraint(Sketcher.Constraint("DistanceY", -1, 1, 6, 3, 25.0))
sketch12.addConstraint(Sketcher.Constraint("DistanceY", -1, 1, 8, 3, 10.0))
sketch12.setExpression("Constraints[18]", "Params.sketch12_diameter")
pocket5 = doc.addObject("PartDesign::Pocket", "Pocket004")
body.addObject(pocket5)
pocket5.Profile = sketch12
pocket5.setExpression("Length", "Params.pocket5_length")
pocket5.Reversed = True

sketch13 = doc.addObject("Sketcher::SketchObject", "Sketch012")
body.addObject(sketch13)
sketch13.AttachmentSupport = (doc.YZ_Plane, [""])
sketch13.MapMode = "FlatFace"
sketch13.AttachmentOffset = App.Placement(Vector(0, 0, -18), App.Rotation())
sketch13.addGeometry(Part.LineSegment(Vector(-57.5, 77, 0), Vector(-89.5, 77, 0)), False)
sketch13.addGeometry(Part.LineSegment(Vector(-89.5, 77, 0), Vector(-89.5, 80, 0)), False)
sketch13.addGeometry(Part.LineSegment(Vector(-89.5, 80, 0), Vector(-57.5, 80, 0)), False)
sketch13.addGeometry(Part.LineSegment(Vector(-57.5, 80, 0), Vector(-57.5, 77, 0)), False)
sketch13.addConstraint(Sketcher.Constraint("Coincident", 0, 2, 1, 1))
sketch13.addConstraint(Sketcher.Constraint("Coincident", 1, 2, 2, 1))
sketch13.addConstraint(Sketcher.Constraint("Coincident", 2, 2, 3, 1))
sketch13.addConstraint(Sketcher.Constraint("Coincident", 3, 2, 0, 1))
sketch13.addConstraint(Sketcher.Constraint("Horizontal", 0))
sketch13.addConstraint(Sketcher.Constraint("Vertical", 1))
sketch13.addConstraint(Sketcher.Constraint("Horizontal", 2))
sketch13.addConstraint(Sketcher.Constraint("Vertical", 3))
sketch13.addConstraint(Sketcher.Constraint("DistanceX", 0, 2, 0, 1, 32.0))
sketch13.addConstraint(Sketcher.Constraint("DistanceY", 1, 1, 1, 2, 3.0))
sketch13.addConstraint(Sketcher.Constraint("DistanceY", -1, 1, 0, 2, 77.0))
sketch13.addConstraint(Sketcher.Constraint("DistanceX", 0, 2, -1, 1, 89.5))
sketch13.setExpression("Constraints[8]", "Params.sketch13_width")
sketch13.setExpression("Constraints[9]", "Params.sketch13_height")
pad8 = doc.addObject("PartDesign::Pad", "Pad007")
body.addObject(pad8)
pad8.Profile = sketch13
pad8.setExpression("Length", "Params.pad8_length")
pad8.Reversed = True

sketch14 = doc.addObject("Sketcher::SketchObject", "Sketch013")
body.addObject(sketch14)
sketch14.AttachmentSupport = (doc.XY_Plane, [""])
sketch14.MapMode = "FlatFace"
sketch14.AttachmentOffset = App.Placement(Vector(0, 0, 77), App.Rotation())
sketch14.addGeometry(Part.Circle(Vector(-24, -70.5, 0), Vector(0, 0, 1), 1), False)
sketch14.addGeometry(Part.Circle(Vector(-45, -70.5, 0), Vector(0, 0, 1), 1), False)
sketch14.addGeometry(Part.Circle(Vector(-24, -83.5, 0), Vector(0, 0, 1), 1), False)
sketch14.addGeometry(Part.Circle(Vector(-45, -83.5, 0), Vector(0, 0, 1), 1), False)
sketch14.addConstraint(Sketcher.Constraint("Equal", 0, 1))
sketch14.addConstraint(Sketcher.Constraint("Equal", 1, 2))
sketch14.addConstraint(Sketcher.Constraint("Equal", 2, 3))
sketch14.addConstraint(Sketcher.Constraint("Horizontal", 0, 3, 1, 3))
sketch14.addConstraint(Sketcher.Constraint("Horizontal", 2, 3, 3, 3))
sketch14.addConstraint(Sketcher.Constraint("Vertical", 0, 3, 2, 3))
sketch14.addConstraint(Sketcher.Constraint("Vertical", 1, 3, 3, 3))
sketch14.addConstraint(Sketcher.Constraint("Diameter", 0, 2.0))
sketch14.addConstraint(Sketcher.Constraint("DistanceX", 0, 3, -1, 1, 24.0))
sketch14.addConstraint(Sketcher.Constraint("DistanceX", 1, 3, -1, 1, 45.0))
sketch14.addConstraint(Sketcher.Constraint("DistanceY", 2, 3, 0, 3, 13.0))
sketch14.addConstraint(Sketcher.Constraint("DistanceY", 0, 3, -1, 1, 70.5))
sketch14.setExpression("Constraints[7]", "Params.sketch14_diameter")
pocket6 = doc.addObject("PartDesign::Pocket", "Pocket005")
body.addObject(pocket6)
pocket6.Profile = sketch14
pocket6.setExpression("Length", "Params.pocket6_length")
pocket6.Reversed = True
body2 = doc.addObject("PartDesign::Body", "Body001")

sketch15 = doc.addObject("Sketcher::SketchObject", "Sketch014")
body2.addObject(sketch15)
sketch15.AttachmentSupport = (doc.getObject("YZ_Plane001"), [""])
sketch15.MapMode = "FlatFace"
sketch15.AttachmentOffset = App.Placement(Vector(0, 0, 18), App.Rotation())
sketch15.addGeometry(Part.LineSegment(Vector(-52.5, 77, 0), Vector(-57.5, 77, 0)), False)
sketch15.addGeometry(Part.LineSegment(Vector(-57.5, 77, 0), Vector(-12.5, 32, 0)), False)
sketch15.addGeometry(Part.LineSegment(Vector(-12.5, 32, 0), Vector(-12.5, 37, 0)), False)
sketch15.addGeometry(Part.LineSegment(Vector(-12.5, 37, 0), Vector(-52.5, 77, 0)), False)
sketch15.addConstraint(Sketcher.Constraint("Coincident", 0, 2, 1, 1))
sketch15.addConstraint(Sketcher.Constraint("Coincident", 1, 2, 2, 1))
sketch15.addConstraint(Sketcher.Constraint("Coincident", 2, 2, 3, 1))
sketch15.addConstraint(Sketcher.Constraint("Coincident", 3, 2, 0, 1))
sketch15.addConstraint(Sketcher.Constraint("Horizontal", 0))
sketch15.addConstraint(Sketcher.Constraint("Vertical", 2))
sketch15.addConstraint(Sketcher.Constraint("Parallel", 1, 3))
sketch15.addConstraint(Sketcher.Constraint("Equal", 0, 2))
sketch15.addConstraint(Sketcher.Constraint("DistanceX", 0, 2, 0, 1, 5.0))
sketch15.addConstraint(Sketcher.Constraint("DistanceY", -1, 1, 0, 2, 77.0))
sketch15.addConstraint(Sketcher.Constraint("DistanceY", -1, 1, 1, 2, 32.0))
sketch15.addConstraint(Sketcher.Constraint("DistanceX", 0, 2, -1, 1, 57.5))
sketch15.setExpression("Constraints[8]", "Params.sketch15_width")
pad9 = doc.addObject("PartDesign::Pad", "Pad008")
body2.addObject(pad9)
pad9.Profile = sketch15
pad9.setExpression("Length", "Params.pad9_length")
pad9.Reversed = True

doc.recompute()
